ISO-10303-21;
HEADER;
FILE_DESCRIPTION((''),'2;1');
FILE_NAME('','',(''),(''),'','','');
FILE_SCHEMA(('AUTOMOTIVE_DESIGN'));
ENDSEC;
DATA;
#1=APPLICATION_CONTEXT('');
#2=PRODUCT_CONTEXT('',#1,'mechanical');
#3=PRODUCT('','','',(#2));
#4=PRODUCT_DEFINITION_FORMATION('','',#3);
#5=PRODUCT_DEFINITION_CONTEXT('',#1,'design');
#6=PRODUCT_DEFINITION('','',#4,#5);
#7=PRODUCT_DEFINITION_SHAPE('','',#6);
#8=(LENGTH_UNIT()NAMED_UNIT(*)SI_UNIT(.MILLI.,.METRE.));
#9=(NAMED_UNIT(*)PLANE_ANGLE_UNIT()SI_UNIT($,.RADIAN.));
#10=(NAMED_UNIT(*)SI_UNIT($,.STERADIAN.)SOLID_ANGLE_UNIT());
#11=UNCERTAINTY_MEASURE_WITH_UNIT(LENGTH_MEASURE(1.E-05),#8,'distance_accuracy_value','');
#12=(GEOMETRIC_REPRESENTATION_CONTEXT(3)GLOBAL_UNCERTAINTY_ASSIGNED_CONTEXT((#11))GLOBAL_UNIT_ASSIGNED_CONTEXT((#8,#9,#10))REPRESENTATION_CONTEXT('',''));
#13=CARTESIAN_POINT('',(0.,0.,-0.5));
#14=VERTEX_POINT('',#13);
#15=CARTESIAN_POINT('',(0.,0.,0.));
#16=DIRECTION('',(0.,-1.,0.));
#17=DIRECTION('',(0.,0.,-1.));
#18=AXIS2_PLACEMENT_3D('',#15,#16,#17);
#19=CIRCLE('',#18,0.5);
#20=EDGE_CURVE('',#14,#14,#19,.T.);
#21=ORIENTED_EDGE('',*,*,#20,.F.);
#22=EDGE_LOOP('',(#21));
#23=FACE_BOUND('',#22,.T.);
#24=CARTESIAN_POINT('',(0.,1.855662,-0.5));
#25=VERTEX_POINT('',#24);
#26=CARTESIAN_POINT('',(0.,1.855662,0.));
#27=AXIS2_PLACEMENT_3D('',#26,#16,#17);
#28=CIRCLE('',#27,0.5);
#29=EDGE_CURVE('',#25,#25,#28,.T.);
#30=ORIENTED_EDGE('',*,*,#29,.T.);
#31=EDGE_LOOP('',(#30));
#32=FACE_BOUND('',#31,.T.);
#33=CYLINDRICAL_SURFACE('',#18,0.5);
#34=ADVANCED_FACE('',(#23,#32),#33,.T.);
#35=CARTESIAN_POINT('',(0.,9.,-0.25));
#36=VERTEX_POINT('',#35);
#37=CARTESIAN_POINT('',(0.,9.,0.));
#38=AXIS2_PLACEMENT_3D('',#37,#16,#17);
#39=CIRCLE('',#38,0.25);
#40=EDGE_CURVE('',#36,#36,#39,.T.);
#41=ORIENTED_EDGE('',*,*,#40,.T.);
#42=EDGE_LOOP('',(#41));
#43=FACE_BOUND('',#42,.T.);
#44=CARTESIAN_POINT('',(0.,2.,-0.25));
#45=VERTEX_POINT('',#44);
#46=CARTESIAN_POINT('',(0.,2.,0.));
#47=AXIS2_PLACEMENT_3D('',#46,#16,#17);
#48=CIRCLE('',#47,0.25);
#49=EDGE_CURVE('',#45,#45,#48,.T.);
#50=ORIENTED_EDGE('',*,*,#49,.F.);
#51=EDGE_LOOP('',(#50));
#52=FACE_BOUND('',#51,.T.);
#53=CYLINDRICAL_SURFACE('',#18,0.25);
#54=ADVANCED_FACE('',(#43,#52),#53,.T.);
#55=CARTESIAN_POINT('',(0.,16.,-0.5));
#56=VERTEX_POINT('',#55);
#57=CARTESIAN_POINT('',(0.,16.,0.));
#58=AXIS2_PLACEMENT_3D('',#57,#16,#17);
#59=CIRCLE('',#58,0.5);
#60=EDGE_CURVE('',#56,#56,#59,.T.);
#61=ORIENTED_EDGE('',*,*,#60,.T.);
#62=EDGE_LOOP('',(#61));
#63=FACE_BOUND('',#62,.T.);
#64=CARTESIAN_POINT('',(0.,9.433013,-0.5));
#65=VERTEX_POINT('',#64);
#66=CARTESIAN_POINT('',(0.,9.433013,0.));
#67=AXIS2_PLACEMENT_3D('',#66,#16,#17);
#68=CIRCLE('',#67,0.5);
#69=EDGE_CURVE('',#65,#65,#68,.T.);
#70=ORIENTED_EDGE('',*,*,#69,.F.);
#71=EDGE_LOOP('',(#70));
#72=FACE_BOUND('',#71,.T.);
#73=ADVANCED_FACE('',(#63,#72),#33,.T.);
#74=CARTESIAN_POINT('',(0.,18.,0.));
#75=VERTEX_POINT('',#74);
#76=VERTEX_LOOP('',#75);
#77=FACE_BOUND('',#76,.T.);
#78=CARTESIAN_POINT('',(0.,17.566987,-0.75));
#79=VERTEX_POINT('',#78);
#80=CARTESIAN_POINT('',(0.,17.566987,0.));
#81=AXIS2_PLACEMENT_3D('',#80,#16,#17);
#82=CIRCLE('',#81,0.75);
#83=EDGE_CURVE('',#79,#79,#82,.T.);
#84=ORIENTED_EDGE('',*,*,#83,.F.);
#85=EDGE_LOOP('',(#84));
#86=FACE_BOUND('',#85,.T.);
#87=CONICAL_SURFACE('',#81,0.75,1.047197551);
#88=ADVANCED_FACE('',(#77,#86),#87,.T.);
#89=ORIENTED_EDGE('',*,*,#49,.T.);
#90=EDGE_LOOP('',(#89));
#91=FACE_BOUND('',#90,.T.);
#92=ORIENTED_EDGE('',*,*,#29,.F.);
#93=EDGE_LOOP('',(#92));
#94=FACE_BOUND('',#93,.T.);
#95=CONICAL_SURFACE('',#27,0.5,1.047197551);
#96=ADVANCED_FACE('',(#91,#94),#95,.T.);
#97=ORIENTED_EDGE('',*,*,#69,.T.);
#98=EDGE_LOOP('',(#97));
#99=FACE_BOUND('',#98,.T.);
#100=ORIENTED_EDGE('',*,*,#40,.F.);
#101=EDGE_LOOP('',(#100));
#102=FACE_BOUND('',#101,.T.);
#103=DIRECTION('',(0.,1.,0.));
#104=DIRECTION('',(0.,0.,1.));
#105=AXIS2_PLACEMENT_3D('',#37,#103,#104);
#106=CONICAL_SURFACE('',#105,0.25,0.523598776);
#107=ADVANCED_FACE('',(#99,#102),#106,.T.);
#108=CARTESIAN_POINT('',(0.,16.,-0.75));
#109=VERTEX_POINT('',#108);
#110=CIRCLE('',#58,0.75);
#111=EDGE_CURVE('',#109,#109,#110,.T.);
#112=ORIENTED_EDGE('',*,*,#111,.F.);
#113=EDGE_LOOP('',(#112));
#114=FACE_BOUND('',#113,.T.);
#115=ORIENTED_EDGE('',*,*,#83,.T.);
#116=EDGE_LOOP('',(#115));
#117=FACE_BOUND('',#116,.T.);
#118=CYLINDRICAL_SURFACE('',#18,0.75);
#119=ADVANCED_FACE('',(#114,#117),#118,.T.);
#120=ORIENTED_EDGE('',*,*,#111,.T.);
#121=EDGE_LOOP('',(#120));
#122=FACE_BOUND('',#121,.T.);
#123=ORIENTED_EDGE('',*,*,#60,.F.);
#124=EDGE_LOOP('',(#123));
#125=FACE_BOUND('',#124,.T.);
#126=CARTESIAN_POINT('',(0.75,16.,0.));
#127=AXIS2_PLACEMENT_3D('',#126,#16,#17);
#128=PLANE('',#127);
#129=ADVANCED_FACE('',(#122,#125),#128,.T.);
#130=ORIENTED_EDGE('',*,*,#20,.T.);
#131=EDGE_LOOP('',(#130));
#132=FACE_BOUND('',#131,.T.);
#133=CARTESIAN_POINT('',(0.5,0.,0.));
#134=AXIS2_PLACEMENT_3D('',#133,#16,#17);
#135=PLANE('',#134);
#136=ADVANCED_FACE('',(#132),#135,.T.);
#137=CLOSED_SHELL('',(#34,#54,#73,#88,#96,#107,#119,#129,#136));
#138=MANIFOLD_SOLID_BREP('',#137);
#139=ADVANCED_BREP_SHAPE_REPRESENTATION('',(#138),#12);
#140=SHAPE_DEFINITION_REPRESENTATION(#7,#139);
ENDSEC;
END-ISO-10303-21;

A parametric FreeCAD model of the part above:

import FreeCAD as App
import Part
import Sketcher
Q = App.Units.Quantity

doc = App.newDocument("Part")
body = doc.addObject("PartDesign::Body", "Body")

# Sketch on XY plane
sketch1 = body.newObject("Sketcher::SketchObject", "Sketch")
sketch1.AttachmentSupport = (doc.getObject("XY_Plane"), [""])
sketch1.MapMode = "FlatFace"
sketch1.addGeometry(Part.LineSegment(App.Vector(0.75, 17.57, 0), App.Vector(0, 18, 0)), False)
sketch1.addGeometry(Part.LineSegment(App.Vector(0, 18, 0), App.Vector(0, 0, 0)), False)
sketch1.addGeometry(Part.LineSegment(App.Vector(0, 0, 0), App.Vector(0.5, 0, 0)), False)
sketch1.addGeometry(Part.LineSegment(App.Vector(0.5, 0, 0), App.Vector(0.5, 1.86, 0)), False)
sketch1.addGeometry(Part.LineSegment(App.Vector(0.5, 1.86, 0), App.Vector(0.25, 2, 0)), False)
sketch1.addGeometry(Part.LineSegment(App.Vector(0.25, 2, 0), App.Vector(0.25, 9, 0)), False)
sketch1.addGeometry(Part.LineSegment(App.Vector(0.25, 9, 0), App.Vector(0.5, 9.43, 0)), False)
sketch1.addGeometry(Part.LineSegment(App.Vector(0.5, 9.43, 0), App.Vector(0.5, 16, 0)), False)
sketch1.addGeometry(Part.LineSegment(App.Vector(0.5, 16, 0), App.Vector(0.75, 16, 0)), False)
sketch1.addGeometry(Part.LineSegment(App.Vector(0.75, 16, 0), App.Vector(0.75, 17.57, 0)), False)
sketch1.addConstraint(Sketcher.Constraint("Coincident", 0, 2, 1, 1))
sketch1.addConstraint(Sketcher.Constraint("Coincident", 1, 2, 2, 1))
sketch1.addConstraint(Sketcher.Constraint("Coincident", 2, 2, 3, 1))
sketch1.addConstraint(Sketcher.Constraint("Coincident", 3, 2, 4, 1))
sketch1.addConstraint(Sketcher.Constraint("Coincident", 4, 2, 5, 1))
sketch1.addConstraint(Sketcher.Constraint("Coincident", 5, 2, 6, 1))
sketch1.addConstraint(Sketcher.Constraint("Coincident", 6, 2, 7, 1))
sketch1.addConstraint(Sketcher.Constraint("Coincident", 7, 2, 8, 1))
sketch1.addConstraint(Sketcher.Constraint("Coincident", 8, 2, 9, 1))
sketch1.addConstraint(Sketcher.Constraint("Coincident", 9, 2, 0, 1))
sketch1.addConstraint(Sketcher.Constraint("Vertical", 1))
sketch1.addConstraint(Sketcher.Constraint("Horizontal", 2))
sketch1.addConstraint(Sketcher.Constraint("Vertical", 3))
sketch1.addConstraint(Sketcher.Constraint("Vertical", 5))
sketch1.addConstraint(Sketcher.Constraint("Vertical", 7))
sketch1.addConstraint(Sketcher.Constraint("Horizontal", 8))
sketch1.addConstraint(Sketcher.Constraint("Vertical", 9))
sketch1.addConstraint(Sketcher.Constraint("Coincident", 1, 2, -1, 1))
sketch1.addConstraint(Sketcher.Constraint("Parallel", 0, 4))
sketch1.addConstraint(Sketcher.Constraint("Perpendicular", 4, 6))
sketch1.addConstraint(Sketcher.Constraint("Vertical", 3, 2, 6, 2))
sketch1.addConstraint(Sketcher.Constraint("DistanceY", 1, 2, 1, 1, Q("18 mm")))
sketch1.addConstraint(Sketcher.Constraint("DistanceY", 5, 1, 5, 2, Q("7 mm")))
sketch1.addConstraint(Sketcher.Constraint("Angle", 0, Q("150 deg")))
sketch1.addConstraint(Sketcher.Constraint("DistanceX", 2, 1, 2, 2, Q("0.5 mm")))
sketch1.addConstraint(Sketcher.Constraint("DistanceY", -1, 1, 4, 2, Q("2 mm")))
sketch1.addConstraint(Sketcher.Constraint("DistanceY", -1, 1, 7, 2, Q("16 mm")))
sketch1.addConstraint(Sketcher.Constraint("Distance", 6, Q("0.5 mm")))
sketch1.addConstraint(Sketcher.Constraint("DistanceX", 8, 1, 8, 2, Q("0.25 mm")))
revolution = body.newObject("PartDesign::Revolution", "Revolution")
revolution.Profile = sketch1
revolution.ReferenceAxis = (sketch1, ["V_Axis"])
revolution.Angle = 360

doc.recompute()
